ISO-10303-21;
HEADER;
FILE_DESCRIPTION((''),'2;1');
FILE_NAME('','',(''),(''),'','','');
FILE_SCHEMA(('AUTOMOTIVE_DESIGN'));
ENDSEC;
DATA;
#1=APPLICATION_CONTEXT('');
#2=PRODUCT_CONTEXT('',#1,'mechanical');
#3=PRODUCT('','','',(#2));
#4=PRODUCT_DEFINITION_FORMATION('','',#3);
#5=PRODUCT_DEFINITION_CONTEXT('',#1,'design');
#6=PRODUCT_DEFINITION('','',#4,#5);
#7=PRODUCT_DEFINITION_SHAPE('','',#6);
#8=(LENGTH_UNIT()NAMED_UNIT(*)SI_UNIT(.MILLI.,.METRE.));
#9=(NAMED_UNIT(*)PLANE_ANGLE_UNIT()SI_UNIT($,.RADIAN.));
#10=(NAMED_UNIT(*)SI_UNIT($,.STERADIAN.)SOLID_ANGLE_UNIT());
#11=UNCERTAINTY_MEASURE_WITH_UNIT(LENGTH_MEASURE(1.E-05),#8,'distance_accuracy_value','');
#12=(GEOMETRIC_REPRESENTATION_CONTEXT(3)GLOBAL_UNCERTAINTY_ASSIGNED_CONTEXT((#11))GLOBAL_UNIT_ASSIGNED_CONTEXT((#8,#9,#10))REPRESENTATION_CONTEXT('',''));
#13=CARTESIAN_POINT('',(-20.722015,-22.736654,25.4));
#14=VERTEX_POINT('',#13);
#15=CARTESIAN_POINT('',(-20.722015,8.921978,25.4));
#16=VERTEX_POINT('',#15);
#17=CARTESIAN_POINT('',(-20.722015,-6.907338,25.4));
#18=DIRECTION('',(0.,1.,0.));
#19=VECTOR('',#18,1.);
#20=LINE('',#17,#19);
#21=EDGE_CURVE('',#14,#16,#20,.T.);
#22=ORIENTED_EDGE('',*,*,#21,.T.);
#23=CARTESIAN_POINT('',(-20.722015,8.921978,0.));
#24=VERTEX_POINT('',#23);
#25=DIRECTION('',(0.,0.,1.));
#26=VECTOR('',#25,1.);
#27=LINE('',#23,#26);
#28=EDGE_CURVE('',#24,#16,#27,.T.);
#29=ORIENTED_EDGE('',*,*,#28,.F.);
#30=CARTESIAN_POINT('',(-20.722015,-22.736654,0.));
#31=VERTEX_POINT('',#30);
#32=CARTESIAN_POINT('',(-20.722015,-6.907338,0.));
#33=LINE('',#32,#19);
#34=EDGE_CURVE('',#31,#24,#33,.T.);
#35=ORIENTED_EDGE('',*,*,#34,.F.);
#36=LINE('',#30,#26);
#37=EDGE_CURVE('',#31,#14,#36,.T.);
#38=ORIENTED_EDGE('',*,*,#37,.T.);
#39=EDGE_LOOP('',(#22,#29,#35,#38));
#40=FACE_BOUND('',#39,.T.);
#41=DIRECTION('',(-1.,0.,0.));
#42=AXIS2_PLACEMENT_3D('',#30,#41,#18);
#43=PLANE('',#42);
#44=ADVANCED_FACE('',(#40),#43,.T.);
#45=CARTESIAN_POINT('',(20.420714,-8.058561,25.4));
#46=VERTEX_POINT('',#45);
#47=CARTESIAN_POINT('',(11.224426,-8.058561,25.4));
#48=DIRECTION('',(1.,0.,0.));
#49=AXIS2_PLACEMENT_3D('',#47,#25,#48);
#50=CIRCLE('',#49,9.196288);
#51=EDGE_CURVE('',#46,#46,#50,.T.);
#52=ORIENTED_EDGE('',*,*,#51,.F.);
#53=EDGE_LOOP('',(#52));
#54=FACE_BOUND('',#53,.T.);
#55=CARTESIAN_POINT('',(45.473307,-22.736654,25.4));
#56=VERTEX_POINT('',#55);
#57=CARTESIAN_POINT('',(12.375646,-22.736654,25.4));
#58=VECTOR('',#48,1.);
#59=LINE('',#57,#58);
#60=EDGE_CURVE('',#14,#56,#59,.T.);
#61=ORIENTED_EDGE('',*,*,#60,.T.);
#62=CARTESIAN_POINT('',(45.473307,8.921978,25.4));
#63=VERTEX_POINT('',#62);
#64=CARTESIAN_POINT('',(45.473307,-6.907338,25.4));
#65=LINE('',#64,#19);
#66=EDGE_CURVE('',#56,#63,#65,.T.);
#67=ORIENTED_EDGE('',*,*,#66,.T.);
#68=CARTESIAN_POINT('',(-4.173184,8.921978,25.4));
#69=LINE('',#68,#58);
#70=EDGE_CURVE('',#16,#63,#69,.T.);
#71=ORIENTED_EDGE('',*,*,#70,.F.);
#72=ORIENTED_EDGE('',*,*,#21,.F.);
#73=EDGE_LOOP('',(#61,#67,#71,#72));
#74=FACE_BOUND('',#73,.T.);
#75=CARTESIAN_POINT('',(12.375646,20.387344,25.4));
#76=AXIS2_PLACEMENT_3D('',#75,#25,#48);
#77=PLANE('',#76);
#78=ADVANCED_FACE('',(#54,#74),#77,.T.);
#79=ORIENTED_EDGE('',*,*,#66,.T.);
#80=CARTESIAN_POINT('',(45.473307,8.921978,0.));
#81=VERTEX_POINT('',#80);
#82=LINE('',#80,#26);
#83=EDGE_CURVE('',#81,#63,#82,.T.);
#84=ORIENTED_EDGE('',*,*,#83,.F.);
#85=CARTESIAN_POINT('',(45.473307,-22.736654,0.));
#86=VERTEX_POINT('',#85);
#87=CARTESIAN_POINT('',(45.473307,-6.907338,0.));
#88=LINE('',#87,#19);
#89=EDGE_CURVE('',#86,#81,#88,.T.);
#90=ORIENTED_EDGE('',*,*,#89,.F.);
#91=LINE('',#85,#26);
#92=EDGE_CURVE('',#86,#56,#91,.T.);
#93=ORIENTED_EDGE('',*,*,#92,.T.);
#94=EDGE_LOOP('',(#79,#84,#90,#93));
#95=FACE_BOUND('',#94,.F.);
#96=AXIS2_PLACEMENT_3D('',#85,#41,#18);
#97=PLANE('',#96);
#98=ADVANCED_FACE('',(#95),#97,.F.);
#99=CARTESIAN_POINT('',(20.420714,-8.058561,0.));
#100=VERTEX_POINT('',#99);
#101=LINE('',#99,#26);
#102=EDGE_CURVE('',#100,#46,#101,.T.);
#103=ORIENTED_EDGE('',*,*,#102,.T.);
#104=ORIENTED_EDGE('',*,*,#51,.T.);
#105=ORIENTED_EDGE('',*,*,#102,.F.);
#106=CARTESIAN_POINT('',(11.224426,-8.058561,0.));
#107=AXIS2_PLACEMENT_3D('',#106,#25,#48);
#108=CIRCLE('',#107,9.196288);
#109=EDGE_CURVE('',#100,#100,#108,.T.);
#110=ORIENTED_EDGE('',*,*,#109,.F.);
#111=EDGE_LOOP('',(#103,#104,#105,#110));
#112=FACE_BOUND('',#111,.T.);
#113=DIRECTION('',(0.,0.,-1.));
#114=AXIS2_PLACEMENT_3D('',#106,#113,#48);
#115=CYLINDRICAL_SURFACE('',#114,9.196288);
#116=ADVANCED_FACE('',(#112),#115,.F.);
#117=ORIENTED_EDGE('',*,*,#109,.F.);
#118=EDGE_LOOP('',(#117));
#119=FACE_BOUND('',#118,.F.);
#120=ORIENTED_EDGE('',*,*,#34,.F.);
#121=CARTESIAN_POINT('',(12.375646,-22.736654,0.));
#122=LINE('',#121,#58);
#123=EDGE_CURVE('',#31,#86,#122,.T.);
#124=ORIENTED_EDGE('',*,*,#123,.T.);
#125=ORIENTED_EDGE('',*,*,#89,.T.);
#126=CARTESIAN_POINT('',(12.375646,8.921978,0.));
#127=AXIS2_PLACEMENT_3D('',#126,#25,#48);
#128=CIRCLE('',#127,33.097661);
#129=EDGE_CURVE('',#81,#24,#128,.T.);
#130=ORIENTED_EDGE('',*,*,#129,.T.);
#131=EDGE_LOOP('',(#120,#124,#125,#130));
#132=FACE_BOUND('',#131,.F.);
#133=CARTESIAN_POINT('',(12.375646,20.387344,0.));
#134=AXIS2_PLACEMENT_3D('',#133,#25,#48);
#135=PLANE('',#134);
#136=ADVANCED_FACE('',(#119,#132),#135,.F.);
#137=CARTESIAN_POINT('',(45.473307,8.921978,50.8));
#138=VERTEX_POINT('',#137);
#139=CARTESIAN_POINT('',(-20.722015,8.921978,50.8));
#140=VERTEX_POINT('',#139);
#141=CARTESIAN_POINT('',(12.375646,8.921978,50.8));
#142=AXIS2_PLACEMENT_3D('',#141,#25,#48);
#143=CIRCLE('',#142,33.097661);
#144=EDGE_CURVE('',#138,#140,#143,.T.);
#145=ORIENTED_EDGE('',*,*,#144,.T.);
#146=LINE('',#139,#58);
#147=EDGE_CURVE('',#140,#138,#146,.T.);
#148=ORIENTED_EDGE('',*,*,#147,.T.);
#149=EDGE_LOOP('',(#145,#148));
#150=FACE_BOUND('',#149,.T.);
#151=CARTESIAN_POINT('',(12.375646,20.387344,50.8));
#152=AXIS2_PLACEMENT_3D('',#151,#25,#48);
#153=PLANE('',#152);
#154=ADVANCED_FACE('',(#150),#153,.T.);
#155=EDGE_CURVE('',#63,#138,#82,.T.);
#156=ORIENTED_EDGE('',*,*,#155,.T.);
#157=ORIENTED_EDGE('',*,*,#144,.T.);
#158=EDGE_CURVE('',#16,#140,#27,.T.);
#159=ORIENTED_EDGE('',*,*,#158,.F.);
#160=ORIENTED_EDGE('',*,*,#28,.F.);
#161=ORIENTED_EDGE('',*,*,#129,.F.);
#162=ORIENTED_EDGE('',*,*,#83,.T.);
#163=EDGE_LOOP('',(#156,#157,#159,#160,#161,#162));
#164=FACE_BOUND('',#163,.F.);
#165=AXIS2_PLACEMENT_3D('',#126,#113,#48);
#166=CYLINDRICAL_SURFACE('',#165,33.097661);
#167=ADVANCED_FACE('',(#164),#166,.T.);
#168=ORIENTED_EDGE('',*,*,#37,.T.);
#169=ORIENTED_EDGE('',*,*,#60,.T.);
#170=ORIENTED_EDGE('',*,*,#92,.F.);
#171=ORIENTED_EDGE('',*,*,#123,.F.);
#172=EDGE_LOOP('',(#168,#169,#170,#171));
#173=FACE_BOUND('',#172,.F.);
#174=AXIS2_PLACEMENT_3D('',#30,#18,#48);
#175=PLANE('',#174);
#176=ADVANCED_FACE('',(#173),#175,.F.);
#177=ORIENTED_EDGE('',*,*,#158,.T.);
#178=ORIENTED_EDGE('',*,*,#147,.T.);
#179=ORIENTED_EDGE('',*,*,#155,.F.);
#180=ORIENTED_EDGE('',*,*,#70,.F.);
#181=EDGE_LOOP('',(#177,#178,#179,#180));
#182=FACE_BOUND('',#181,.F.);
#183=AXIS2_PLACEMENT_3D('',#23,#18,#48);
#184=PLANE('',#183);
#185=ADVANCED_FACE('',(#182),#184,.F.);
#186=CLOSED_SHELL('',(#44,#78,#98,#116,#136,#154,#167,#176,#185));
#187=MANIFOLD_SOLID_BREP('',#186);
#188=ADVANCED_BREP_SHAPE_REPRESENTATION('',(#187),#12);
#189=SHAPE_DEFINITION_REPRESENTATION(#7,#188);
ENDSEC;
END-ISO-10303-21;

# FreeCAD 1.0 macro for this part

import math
import FreeCAD as App
import Part
import Sketcher

V = App.Vector
Q = App.Units.Quantity

doc = App.newDocument("Part")
body = doc.addObject("PartDesign::Body", "Body")

# Sketch on XY plane
sketch1 = body.newObject("Sketcher::SketchObject", "Sketch")
sketch1.AttachmentSupport = (doc.getObject("XY_Plane"), [""])
sketch1.MapMode = "FlatFace"
sketch1.addGeometry([
    Part.ArcOfCircle(Part.Circle(V(12, 9, 0), V(0, 0, 1), 33), math.radians(0), math.radians(180)),
    Part.LineSegment(V(-21, 9, 0), V(45, 9, 0)),
], False)
sketch1.addConstraint([
    Sketcher.Constraint("Coincident", 0, 1, 1, 2),
    Sketcher.Constraint("Coincident", 1, 1, 0, 2),
    Sketcher.Constraint("Horizontal", 1),
    Sketcher.Constraint("Radius", 0, 33.097661),
    Sketcher.Constraint("DistanceX", -1, 1, 0, 3, 12.375646),
    Sketcher.Constraint("DistanceY", -1, 1, 0, 3, 8.921978),
    Sketcher.Constraint("DistanceY", -1, 1, 0, 1, 8.921978),
])
pad1 = body.newObject("PartDesign::Pad", "Pad")
pad1.Profile = sketch1
pad1.Length = Q("2 in")

# Sketch on XY plane
sketch2 = body.newObject("Sketcher::SketchObject", "Sketch001")
sketch2.AttachmentSupport = (doc.getObject("XY_Plane"), [""])
sketch2.MapMode = "FlatFace"
sketch2.addGeometry([
    Part.ArcOfCircle(Part.Circle(V(12, 9, 0), V(0, 0, 1), 33), math.radians(0), math.radians(180)),  # 0
    Part.LineSegment(V(-21, 9, 0), V(-21, -23, 0)),  # 1
    Part.LineSegment(V(-21, -23, 0), V(45, -23, 0)),  # 2
    Part.LineSegment(V(45, -23, 0), V(45, 9, 0)),  # 3
    Part.Circle(V(11, -8, 0), V(0, 0, 1), 9),  # 4
], False)
sketch2.addConstraint([
    Sketcher.Constraint("Tangent", 0, 2, 1, 1),
    Sketcher.Constraint("Coincident", 1, 2, 2, 1),
    Sketcher.Constraint("Coincident", 2, 2, 3, 1),
    Sketcher.Constraint("Tangent", 3, 2, 0, 1),
    Sketcher.Constraint("Vertical", 1),
    Sketcher.Constraint("Horizontal", 2),
    Sketcher.Constraint("Vertical", 3),
    Sketcher.Constraint("Radius", 0, 33.097661),
    Sketcher.Constraint("Diameter", 4, 18.392576),
    Sketcher.Constraint("DistanceY", 1, 2, 1, 1, 31.658632),
    Sketcher.Constraint("DistanceY", 4, 3, -1, 1, 8.058561),
    Sketcher.Constraint("DistanceY", -1, 1, 0, 2, 8.921978),
    Sketcher.Constraint("DistanceX", 4, 3, 0, 3, 1.15122),
    Sketcher.Constraint("DistanceX", -1, 1, 0, 3, 12.375646),
])
pad2 = body.newObject("PartDesign::Pad", "Pad001")
pad2.Profile = sketch2
pad2.Length = Q("1 in")

doc.recompute()
